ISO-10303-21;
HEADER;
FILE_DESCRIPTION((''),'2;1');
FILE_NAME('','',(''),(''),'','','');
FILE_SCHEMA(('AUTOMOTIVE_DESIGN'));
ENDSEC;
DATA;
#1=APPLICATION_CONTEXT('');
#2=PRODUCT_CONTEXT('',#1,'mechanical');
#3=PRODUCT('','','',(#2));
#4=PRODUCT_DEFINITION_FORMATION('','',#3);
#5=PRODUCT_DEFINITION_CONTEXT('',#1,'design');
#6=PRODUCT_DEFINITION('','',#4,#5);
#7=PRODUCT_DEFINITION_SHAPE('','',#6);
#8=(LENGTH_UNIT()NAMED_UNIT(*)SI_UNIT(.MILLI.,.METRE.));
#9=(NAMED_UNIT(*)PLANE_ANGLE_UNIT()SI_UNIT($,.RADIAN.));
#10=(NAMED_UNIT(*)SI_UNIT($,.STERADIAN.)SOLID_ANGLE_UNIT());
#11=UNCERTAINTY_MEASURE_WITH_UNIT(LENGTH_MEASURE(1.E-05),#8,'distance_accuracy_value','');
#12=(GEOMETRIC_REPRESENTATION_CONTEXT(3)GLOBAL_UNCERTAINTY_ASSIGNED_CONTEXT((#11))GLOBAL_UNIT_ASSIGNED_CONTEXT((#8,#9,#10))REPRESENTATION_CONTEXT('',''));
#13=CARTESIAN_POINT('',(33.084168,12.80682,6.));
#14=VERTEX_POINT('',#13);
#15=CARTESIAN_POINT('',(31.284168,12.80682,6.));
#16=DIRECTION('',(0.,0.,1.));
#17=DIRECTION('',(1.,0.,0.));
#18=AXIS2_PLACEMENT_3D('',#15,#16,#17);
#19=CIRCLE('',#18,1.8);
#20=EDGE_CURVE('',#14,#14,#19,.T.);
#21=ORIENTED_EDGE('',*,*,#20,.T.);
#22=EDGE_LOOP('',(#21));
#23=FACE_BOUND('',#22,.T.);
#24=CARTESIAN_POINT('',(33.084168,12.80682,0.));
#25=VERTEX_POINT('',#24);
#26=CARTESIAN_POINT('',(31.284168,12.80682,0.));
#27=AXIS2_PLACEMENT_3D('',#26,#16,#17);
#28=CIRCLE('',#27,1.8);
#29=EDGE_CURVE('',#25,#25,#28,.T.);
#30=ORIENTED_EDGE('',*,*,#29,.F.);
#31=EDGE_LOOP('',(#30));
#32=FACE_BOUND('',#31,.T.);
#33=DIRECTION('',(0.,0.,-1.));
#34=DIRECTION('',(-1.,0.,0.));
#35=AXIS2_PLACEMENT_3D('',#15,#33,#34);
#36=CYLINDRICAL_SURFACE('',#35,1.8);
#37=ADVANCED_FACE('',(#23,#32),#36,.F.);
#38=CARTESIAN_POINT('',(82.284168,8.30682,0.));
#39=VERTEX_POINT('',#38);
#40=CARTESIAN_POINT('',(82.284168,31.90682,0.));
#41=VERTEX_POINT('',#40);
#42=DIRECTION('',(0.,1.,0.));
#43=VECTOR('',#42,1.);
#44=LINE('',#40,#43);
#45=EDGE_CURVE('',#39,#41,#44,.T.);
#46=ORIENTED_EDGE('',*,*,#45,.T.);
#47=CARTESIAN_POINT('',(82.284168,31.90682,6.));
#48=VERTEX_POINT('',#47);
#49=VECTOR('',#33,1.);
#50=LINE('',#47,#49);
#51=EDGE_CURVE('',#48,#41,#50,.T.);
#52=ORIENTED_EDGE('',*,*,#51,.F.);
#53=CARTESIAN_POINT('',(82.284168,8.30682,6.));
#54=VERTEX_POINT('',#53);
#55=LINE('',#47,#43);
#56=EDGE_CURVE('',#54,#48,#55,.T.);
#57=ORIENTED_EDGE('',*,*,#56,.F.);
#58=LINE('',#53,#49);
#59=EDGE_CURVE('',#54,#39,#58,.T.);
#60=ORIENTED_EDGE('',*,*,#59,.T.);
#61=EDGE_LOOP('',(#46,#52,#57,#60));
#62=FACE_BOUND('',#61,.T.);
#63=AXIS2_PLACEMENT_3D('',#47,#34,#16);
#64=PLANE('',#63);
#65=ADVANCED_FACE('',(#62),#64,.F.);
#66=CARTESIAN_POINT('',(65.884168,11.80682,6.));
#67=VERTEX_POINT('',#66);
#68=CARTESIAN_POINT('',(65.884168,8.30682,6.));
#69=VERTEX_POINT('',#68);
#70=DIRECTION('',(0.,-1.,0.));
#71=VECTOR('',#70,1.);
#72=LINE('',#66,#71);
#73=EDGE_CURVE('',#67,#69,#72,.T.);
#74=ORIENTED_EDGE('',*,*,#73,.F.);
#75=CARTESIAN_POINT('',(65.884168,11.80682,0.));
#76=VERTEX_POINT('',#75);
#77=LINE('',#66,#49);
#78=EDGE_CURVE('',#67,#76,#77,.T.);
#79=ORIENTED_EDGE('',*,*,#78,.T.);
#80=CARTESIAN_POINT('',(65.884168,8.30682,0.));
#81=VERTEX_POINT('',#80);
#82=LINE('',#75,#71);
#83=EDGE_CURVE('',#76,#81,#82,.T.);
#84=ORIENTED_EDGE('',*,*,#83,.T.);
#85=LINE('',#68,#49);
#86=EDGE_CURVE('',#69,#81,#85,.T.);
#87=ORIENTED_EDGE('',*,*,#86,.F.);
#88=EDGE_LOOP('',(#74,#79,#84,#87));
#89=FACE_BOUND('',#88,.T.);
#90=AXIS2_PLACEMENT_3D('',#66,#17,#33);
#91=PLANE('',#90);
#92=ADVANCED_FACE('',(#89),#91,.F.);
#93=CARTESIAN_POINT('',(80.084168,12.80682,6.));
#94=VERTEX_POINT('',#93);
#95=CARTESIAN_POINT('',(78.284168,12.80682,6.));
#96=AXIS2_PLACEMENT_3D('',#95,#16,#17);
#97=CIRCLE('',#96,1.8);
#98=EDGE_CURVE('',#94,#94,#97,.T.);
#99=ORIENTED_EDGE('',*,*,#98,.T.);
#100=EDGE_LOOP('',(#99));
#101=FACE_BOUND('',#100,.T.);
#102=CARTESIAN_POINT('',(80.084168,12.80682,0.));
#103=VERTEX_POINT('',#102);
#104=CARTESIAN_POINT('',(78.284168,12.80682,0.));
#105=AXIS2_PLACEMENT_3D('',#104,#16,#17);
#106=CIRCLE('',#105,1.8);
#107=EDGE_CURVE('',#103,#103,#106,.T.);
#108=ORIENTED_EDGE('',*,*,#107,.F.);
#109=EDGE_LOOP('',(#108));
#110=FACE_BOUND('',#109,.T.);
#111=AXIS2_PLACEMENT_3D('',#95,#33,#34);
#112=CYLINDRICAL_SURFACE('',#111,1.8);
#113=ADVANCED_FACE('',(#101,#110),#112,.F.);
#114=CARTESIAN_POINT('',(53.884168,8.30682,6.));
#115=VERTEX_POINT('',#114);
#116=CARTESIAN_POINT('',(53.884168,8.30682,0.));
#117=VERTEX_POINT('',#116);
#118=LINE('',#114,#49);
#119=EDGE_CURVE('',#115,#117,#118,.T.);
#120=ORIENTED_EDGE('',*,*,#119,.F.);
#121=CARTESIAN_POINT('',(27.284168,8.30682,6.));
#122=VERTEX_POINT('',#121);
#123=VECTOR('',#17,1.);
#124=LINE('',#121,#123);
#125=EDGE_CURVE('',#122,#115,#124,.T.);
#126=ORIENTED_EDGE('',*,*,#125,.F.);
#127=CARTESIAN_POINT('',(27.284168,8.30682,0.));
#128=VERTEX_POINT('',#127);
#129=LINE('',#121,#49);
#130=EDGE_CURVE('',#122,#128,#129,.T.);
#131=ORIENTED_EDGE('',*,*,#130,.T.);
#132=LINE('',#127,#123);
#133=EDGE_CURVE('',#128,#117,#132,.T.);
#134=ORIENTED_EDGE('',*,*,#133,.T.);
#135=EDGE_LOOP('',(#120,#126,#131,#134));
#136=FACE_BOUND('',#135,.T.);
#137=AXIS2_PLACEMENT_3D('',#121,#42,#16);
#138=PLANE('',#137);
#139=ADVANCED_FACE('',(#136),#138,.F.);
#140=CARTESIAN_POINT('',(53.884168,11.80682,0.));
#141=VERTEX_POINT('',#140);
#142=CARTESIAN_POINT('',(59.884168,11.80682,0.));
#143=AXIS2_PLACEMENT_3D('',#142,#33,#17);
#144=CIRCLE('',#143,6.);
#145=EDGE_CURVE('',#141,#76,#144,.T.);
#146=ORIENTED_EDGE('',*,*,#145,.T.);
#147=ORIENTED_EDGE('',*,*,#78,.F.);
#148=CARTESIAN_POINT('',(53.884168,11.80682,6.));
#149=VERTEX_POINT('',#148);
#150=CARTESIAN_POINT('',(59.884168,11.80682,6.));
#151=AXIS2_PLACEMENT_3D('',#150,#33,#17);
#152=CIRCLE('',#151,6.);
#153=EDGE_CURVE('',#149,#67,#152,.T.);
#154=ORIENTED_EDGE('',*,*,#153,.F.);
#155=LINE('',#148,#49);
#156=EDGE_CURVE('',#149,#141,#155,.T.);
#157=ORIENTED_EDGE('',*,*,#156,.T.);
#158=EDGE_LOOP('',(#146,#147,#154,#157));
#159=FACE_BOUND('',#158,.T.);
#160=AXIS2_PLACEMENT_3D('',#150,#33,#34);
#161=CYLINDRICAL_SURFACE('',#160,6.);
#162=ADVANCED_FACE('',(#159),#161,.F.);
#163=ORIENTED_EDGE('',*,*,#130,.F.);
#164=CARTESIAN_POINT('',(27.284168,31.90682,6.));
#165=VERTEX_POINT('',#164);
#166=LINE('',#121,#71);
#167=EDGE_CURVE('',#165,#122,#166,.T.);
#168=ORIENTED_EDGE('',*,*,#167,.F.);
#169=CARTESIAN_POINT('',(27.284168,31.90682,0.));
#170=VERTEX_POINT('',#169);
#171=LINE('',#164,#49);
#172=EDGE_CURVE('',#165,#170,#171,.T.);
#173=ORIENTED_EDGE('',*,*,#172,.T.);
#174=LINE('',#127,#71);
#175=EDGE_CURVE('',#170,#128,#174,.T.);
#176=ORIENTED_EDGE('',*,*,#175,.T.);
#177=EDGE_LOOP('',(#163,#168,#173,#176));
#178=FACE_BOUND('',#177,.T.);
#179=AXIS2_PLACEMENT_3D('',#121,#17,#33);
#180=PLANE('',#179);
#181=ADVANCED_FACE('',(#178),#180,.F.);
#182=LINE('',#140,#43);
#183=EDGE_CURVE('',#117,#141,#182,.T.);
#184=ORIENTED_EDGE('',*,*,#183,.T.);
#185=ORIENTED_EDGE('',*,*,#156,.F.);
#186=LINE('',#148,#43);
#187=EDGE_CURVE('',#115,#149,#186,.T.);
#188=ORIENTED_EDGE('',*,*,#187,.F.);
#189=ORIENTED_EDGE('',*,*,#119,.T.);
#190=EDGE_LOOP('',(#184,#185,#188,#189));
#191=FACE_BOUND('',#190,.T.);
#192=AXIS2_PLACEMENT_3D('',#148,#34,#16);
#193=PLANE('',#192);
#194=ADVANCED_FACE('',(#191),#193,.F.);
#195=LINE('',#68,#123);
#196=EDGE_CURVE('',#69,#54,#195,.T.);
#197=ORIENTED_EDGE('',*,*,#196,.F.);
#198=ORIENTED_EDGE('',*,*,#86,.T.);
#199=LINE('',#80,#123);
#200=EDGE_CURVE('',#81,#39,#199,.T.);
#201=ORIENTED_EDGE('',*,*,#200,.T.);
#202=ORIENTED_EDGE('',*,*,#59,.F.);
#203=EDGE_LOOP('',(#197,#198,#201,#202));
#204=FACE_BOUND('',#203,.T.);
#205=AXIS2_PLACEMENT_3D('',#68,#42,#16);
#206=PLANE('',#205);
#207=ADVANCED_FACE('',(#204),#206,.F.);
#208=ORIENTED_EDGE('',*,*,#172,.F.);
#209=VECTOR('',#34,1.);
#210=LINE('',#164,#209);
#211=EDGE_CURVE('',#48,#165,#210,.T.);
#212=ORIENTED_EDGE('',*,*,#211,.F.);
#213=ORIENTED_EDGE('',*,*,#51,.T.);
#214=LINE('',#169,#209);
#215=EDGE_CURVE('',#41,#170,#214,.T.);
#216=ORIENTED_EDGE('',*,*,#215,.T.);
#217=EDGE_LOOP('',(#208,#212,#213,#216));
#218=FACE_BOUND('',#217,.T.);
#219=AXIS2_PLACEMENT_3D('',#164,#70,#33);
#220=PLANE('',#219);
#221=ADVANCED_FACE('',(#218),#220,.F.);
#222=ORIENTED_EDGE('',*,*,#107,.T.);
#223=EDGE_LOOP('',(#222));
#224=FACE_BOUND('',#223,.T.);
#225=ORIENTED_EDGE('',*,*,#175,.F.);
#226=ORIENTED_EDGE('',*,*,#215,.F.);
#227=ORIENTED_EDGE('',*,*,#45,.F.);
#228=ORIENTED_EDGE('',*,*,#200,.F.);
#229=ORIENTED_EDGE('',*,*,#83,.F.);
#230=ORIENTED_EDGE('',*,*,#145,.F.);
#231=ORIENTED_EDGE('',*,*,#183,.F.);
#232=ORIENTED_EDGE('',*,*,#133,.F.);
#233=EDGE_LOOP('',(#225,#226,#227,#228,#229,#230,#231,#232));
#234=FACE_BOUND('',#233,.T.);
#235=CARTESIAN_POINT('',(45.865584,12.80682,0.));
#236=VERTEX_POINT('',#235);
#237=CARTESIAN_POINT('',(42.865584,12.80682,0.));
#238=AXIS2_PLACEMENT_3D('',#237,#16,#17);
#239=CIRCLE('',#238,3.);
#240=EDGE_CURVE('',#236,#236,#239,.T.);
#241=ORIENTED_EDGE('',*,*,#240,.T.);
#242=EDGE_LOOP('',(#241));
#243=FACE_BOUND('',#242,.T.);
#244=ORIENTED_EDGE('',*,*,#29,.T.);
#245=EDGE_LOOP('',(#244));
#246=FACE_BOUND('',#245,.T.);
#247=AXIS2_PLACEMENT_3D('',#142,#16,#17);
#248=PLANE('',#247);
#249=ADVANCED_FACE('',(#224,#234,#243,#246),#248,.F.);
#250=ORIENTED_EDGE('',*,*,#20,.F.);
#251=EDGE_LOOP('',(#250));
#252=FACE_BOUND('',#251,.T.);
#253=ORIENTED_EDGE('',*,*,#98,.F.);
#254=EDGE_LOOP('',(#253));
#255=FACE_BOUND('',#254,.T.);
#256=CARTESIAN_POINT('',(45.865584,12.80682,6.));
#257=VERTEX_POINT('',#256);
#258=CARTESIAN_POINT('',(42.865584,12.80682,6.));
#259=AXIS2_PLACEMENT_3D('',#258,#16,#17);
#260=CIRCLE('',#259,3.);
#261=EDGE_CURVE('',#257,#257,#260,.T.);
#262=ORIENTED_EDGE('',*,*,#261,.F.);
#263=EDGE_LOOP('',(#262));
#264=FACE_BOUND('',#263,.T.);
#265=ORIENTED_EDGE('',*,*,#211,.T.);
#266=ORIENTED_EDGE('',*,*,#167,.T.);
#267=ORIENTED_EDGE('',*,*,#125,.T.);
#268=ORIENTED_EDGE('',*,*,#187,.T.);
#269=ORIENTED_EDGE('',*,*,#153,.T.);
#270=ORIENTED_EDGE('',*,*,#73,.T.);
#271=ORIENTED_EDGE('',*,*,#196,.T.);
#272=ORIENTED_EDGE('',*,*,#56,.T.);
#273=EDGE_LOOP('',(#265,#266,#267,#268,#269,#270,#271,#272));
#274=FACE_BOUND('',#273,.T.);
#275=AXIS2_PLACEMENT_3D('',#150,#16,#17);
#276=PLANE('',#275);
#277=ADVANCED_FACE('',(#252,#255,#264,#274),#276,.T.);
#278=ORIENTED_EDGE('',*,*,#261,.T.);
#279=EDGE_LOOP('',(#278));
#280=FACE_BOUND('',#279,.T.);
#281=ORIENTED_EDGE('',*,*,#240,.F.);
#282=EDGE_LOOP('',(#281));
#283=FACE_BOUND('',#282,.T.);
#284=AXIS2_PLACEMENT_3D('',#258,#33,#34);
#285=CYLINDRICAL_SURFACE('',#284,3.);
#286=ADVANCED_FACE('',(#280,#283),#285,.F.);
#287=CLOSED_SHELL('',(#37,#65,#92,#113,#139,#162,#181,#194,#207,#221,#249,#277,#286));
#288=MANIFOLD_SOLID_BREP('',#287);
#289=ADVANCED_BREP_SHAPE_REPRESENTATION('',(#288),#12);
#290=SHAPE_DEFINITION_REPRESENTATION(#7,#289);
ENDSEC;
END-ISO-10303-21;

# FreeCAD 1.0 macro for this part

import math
import FreeCAD as App
import Part
import Sketcher
from FreeCAD import Vector
Q = App.Units.Quantity

doc = App.newDocument("Part")
params = doc.addObject("Spreadsheet::Sheet", "Params")
for row, (alias, value) in enumerate([
    ("sketch1_diameter", "6 mm"),
    ("sketch1_radius", "6 mm"),
    ("sketch1_diameter2", "3.6 mm"),
    ("sketch1_width", "55 mm"),
    ("sketch1_width2", "26.6 mm"),
    ("pad1_length", "6 mm"),
], start=1):
    params.set(f"A{row}", alias)
    params.set(f"B{row}", "=" + value)
    params.setAlias(f"B{row}", alias)

body = doc.addObject("PartDesign::Body", "Body")

sketch1 = body.newObject("Sketcher::SketchObject", "Sketch")
sketch1.AttachmentSupport = (doc.getObject("XY_Plane"), [""])
sketch1.MapMode = "FlatFace"
sketch1.addGeometry([
    Part.LineSegment(Vector(27.284168, 31.90682, 0), Vector(27.284168, 8.30682, 0)),
    Part.LineSegment(Vector(27.284168, 8.30682, 0), Vector(53.884168, 8.30682, 0)),
    Part.LineSegment(Vector(53.884168, 8.30682, 0), Vector(53.884168, 11.80682, 0)),
    Part.ArcOfCircle(Part.Circle(Vector(59.884168, 11.80682, 0), Vector(0, 0, 1), 6), math.radians(0), math.radians(180)),
    Part.LineSegment(Vector(65.884168, 11.80682, 0), Vector(65.884168, 8.30682, 0)),
    Part.LineSegment(Vector(65.884168, 8.30682, 0), Vector(82.284168, 8.30682, 0)),
    Part.LineSegment(Vector(82.284168, 8.30682, 0), Vector(82.284168, 31.90682, 0)),
    Part.LineSegment(Vector(82.284168, 31.90682, 0), Vector(27.284168, 31.90682, 0)),
    Part.Circle(Vector(78.284168, 12.80682, 0), Vector(0, 0, 1), 1.8),
    Part.Circle(Vector(42.865584, 12.80682, 0), Vector(0, 0, 1), 3),
    Part.Circle(Vector(31.284168, 12.80682, 0), Vector(0, 0, 1), 1.8),
], False)
sketch1.addConstraint([
    Sketcher.Constraint("Coincident", 0, 2, 1, 1),
    Sketcher.Constraint("Coincident", 1, 2, 2, 1),
    Sketcher.Constraint("Tangent", 2, 2, 3, 2),
    Sketcher.Constraint("Tangent", 3, 1, 4, 1),
    Sketcher.Constraint("Coincident", 4, 2, 5, 1),
    Sketcher.Constraint("Coincident", 5, 2, 6, 1),
    Sketcher.Constraint("Coincident", 6, 2, 7, 1),
    Sketcher.Constraint("Coincident", 7, 2, 0, 1),
    Sketcher.Constraint("Vertical", 0),
    Sketcher.Constraint("Horizontal", 1),
    Sketcher.Constraint("Vertical", 2),
    Sketcher.Constraint("Vertical", 4),
    Sketcher.Constraint("Horizontal", 5),
    Sketcher.Constraint("Vertical", 6),
    Sketcher.Constraint("Horizontal", 7),
    Sketcher.Constraint("Equal", 8, 10),
    Sketcher.Constraint("Horizontal", 8, 3, 9, 3),
    Sketcher.Constraint("Horizontal", 9, 3, 10, 3),
    Sketcher.Constraint("Horizontal", 1, 2, 4, 2),
    Sketcher.Constraint("Diameter", 9, Q("6 mm")),
    Sketcher.Constraint("Radius", 3, Q("6 mm")),
    Sketcher.Constraint("Diameter", 8, Q("3.6 mm")),
    Sketcher.Constraint("DistanceX", 7, 2, 7, 1, Q("55 mm")),
    Sketcher.Constraint("DistanceX", 1, 1, 1, 2, Q("26.6 mm")),
    Sketcher.Constraint("DistanceY", 0, 2, 0, 1, Q("23.6 mm")),
    Sketcher.Constraint("DistanceY", 2, 1, 2, 2, Q("3.5 mm")),
    Sketcher.Constraint("DistanceY", 3, 3, 8, 3, Q("1 mm")),
    Sketcher.Constraint("DistanceX", 10, 3, 8, 3, Q("47 mm")),
    Sketcher.Constraint("DistanceX", 0, 2, 10, 3, Q("4 mm")),
    Sketcher.Constraint("DistanceX", -1, 1, 3, 3, Q("59.884168 mm")),
    Sketcher.Constraint("DistanceY", -1, 1, 3, 3, Q("11.80682 mm")),
    Sketcher.Constraint("DistanceX", -1, 1, 9, 3, Q("42.865584 mm")),
])
sketch1.setExpression("Constraints[19]", "Params.sketch1_diameter")
sketch1.setExpression("Constraints[20]", "Params.sketch1_radius")
sketch1.setExpression("Constraints[21]", "Params.sketch1_diameter2")
sketch1.setExpression("Constraints[22]", "Params.sketch1_width")
sketch1.setExpression("Constraints[23]", "Params.sketch1_width2")
pad1 = body.newObject("PartDesign::Pad", "Pad")
pad1.Profile = sketch1
pad1.setExpression("Length", "Params.pad1_length")

doc.recompute()
